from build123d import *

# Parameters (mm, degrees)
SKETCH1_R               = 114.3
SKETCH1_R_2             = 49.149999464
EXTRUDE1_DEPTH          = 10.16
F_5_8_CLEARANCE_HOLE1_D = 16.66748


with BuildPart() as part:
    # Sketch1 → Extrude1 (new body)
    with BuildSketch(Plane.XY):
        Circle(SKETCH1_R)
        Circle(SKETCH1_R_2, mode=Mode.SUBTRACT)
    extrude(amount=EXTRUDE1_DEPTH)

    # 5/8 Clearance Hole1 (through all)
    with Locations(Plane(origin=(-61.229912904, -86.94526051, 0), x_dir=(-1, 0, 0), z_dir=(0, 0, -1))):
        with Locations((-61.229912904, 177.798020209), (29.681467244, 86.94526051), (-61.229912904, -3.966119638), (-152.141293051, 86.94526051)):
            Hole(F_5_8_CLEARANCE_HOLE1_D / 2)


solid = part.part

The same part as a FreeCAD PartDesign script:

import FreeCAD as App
import Part
import Sketcher
from FreeCAD import Vector
Q = App.Units.Quantity

doc = App.newDocument("Part")
body = doc.addObject("PartDesign::Body", "Body")

sketch1 = body.newObject("Sketcher::SketchObject", "Sketch")
sketch1.AttachmentSupport = (doc.getObject("XY_Plane"), [""])
sketch1.MapMode = "FlatFace"
sketch1.addGeometry([
    Part.Circle(Vector(0, 0, 0), Vector(0, 0, 1), 114),
    Part.Circle(Vector(0, 0, 0), Vector(0, 0, 1), 49),
], False)
sketch1.addConstraint([
    Sketcher.Constraint("Coincident", 0, 3, -1, 1),
    Sketcher.Constraint("Coincident", 1, 3, -1, 1),
    Sketcher.Constraint("Diameter", 0, Q("9 in")),
    Sketcher.Constraint("Diameter", 1, Q("98.299999 mm")),
])
pad1 = body.newObject("PartDesign::Pad", "Pad")
pad1.Profile = sketch1
pad1.Length = Q("0.4 in")

sketch2 = body.newObject("Sketcher::SketchObject", "Sketch001")
sketch2.AttachmentSupport = (doc.getObject("XY_Plane"), [""])
sketch2.MapMode = "FlatFace"
sketch2.addGeometry([
    Part.Circle(Vector(0, 91, 0), Vector(0, 0, 1), 8),
    Part.Circle(Vector(-91, 0, 0), Vector(0, 0, 1), 8),
    Part.Circle(Vector(0, -91, 0), Vector(0, 0, 1), 8),
    Part.Circle(Vector(91, 0, 0), Vector(0, 0, 1), 8),
], False)
sketch2.addConstraint([
    Sketcher.Constraint("Equal", 0, 1),
    Sketcher.Constraint("Equal", 1, 2),
    Sketcher.Constraint("Equal", 2, 3),
    Sketcher.Constraint("Symmetric", 1, 3, 3, 3, -1, 1),
    Sketcher.Constraint("PointOnObject", 0, 3, -2),
    Sketcher.Constraint("PointOnObject", 1, 3, -1),
    Sketcher.Constraint("PointOnObject", 2, 3, -2),
    Sketcher.Constraint("Diameter", 0, Q("0.6562 in")),
    Sketcher.Constraint("DistanceY", -1, 1, 0, 3, Q("90.85276 mm")),
    Sketcher.Constraint("DistanceX", 1, 3, -1, 1, Q("90.91138 mm")),
    Sketcher.Constraint("DistanceY", 2, 3, -1, 1, Q("90.91138 mm")),
])
doc.recompute()
hole = body.newObject("PartDesign::Hole", "Hole")
hole.Profile = sketch2
hole.ThreadType = "None"
hole.Diameter = Q("0.6562 in")
hole.DepthType = "ThroughAll"
hole.Reversed = True

doc.recompute()
